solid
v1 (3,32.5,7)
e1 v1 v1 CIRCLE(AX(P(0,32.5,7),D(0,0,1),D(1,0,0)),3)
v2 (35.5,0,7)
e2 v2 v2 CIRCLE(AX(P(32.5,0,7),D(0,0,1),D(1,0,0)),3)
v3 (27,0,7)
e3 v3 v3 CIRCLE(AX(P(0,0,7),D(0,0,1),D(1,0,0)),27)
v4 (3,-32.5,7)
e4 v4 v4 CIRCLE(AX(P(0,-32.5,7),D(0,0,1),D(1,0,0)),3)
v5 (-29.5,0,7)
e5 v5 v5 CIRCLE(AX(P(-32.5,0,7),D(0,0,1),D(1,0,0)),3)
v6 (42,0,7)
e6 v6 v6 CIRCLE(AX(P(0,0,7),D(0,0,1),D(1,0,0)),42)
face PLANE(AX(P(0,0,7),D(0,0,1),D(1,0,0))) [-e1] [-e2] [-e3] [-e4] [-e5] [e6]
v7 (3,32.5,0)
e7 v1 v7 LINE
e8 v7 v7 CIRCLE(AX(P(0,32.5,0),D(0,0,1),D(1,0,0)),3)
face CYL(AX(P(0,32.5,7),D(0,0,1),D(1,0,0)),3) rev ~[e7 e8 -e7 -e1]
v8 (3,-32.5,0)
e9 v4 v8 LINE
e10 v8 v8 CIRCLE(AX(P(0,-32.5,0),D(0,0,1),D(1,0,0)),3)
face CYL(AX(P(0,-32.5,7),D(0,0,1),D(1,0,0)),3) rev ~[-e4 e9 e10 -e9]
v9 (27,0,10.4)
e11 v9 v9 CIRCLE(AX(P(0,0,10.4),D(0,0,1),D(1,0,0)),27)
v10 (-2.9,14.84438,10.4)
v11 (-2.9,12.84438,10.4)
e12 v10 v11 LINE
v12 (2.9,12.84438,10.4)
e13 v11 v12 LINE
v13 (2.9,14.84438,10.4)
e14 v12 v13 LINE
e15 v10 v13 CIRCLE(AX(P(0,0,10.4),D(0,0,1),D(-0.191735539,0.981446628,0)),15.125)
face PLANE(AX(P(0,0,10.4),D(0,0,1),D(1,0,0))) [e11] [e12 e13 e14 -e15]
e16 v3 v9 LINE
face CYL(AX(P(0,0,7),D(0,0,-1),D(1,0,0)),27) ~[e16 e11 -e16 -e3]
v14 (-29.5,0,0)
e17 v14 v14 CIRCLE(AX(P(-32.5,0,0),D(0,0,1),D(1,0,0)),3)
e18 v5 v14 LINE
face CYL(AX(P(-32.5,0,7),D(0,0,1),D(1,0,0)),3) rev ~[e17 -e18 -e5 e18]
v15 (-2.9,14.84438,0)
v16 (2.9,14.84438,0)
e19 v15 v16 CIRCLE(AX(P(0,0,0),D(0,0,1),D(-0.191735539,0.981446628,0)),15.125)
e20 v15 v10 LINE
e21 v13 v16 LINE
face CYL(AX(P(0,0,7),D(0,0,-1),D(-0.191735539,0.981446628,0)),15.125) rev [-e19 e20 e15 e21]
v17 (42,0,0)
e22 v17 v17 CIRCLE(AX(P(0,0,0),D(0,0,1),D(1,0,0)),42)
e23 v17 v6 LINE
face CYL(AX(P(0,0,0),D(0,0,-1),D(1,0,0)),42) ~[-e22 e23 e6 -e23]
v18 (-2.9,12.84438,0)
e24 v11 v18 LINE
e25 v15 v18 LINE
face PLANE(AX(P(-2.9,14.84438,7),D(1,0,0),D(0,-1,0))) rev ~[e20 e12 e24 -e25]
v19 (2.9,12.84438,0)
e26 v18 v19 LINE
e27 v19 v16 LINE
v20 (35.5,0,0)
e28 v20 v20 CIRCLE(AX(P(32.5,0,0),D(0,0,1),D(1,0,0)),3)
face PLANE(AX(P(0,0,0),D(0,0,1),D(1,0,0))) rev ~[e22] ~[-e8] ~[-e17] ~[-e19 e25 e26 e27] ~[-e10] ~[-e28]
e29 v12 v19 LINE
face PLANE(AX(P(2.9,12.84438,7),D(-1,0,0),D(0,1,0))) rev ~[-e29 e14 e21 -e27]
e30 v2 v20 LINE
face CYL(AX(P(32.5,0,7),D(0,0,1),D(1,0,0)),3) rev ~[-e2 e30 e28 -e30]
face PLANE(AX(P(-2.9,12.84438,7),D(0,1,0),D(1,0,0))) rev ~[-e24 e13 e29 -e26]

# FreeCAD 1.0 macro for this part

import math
import FreeCAD as App
import Part
import Sketcher
from FreeCAD import Vector
Q = App.Units.Quantity

doc = App.newDocument("Part")
body = doc.addObject("PartDesign::Body", "Body")

# Sketch on XY plane
sketch1 = doc.addObject("Sketcher::SketchObject", "Sketch")
body.addObject(sketch1)
sketch1.AttachmentSupport = (doc.XY_Plane, [""])
sketch1.MapMode = "FlatFace"
sketch1.addGeometry(Part.Circle(Vector(0, 0, 0), Vector(0, 0, 1), 42), False)
sketch1.addGeometry(Part.ArcOfCircle(Part.Circle(Vector(0, 0, 0), Vector(0, 0, 1), 15.1), math.radians(101), math.radians(439)), False)
sketch1.addGeometry(Part.LineSegment(Vector(-2.9, 14.8, 0), Vector(-2.9, 12.8, 0)), False)
sketch1.addGeometry(Part.LineSegment(Vector(-2.9, 12.8, 0), Vector(2.9, 12.8, 0)), False)
sketch1.addGeometry(Part.LineSegment(Vector(2.9, 12.8, 0), Vector(2.9, 14.8, 0)), False)
sketch1.addConstraint(Sketcher.Constraint("Coincident", 1, 1, 2, 1))
sketch1.addConstraint(Sketcher.Constraint("Coincident", 2, 2, 3, 1))
sketch1.addConstraint(Sketcher.Constraint("Coincident", 3, 2, 4, 1))
sketch1.addConstraint(Sketcher.Constraint("Coincident", 4, 2, 1, 2))
sketch1.addConstraint(Sketcher.Constraint("Vertical", 2))
sketch1.addConstraint(Sketcher.Constraint("Horizontal", 3))
sketch1.addConstraint(Sketcher.Constraint("Vertical", 4))
sketch1.addConstraint(Sketcher.Constraint("Coincident", 0, 3, -1, 1))
sketch1.addConstraint(Sketcher.Constraint("Coincident", 1, 3, -1, 1))
sketch1.addConstraint(Sketcher.Constraint("Horizontal", 1, 1, 4, 2))
sketch1.addConstraint(Sketcher.Constraint("Diameter", 0, Q("84 mm")))
sketch1.addConstraint(Sketcher.Constraint("DistanceY", 2, 2, 2, 1, Q("2 mm")))
sketch1.addConstraint(Sketcher.Constraint("DistanceX", 3, 1, 3, 2, Q("5.8 mm")))
sketch1.addConstraint(Sketcher.Constraint("Radius", 1, Q("15.125 mm")))
pad1 = doc.addObject("PartDesign::Pad", "Pad")
body.addObject(pad1)
pad1.Profile = sketch1
pad1.Length = 7

# Sketch on XY plane
sketch2 = doc.addObject("Sketcher::SketchObject", "Sketch001")
body.addObject(sketch2)
sketch2.AttachmentSupport = (doc.XY_Plane, [""])
sketch2.MapMode = "FlatFace"
sketch2.AttachmentOffset = App.Placement(Vector(0, 0, 7), App.Rotation())
sketch2.addGeometry(Part.Circle(Vector(0, 0, 0), Vector(0, 0, 1), 27), False)
sketch2.addGeometry(Part.ArcOfCircle(Part.Circle(Vector(0, 0, 0), Vector(0, 0, 1), 15.1), math.radians(101), math.radians(439)), False)
sketch2.addGeometry(Part.LineSegment(Vector(-2.9, 14.8, 0), Vector(-2.9, 12.8, 0)), False)
sketch2.addGeometry(Part.LineSegment(Vector(-2.9, 12.8, 0), Vector(2.9, 12.8, 0)), False)
sketch2.addGeometry(Part.LineSegment(Vector(2.9, 12.8, 0), Vector(2.9, 14.8, 0)), False)
sketch2.addConstraint(Sketcher.Constraint("Coincident", 1, 1, 2, 1))
sketch2.addConstraint(Sketcher.Constraint("Coincident", 2, 2, 3, 1))
sketch2.addConstraint(Sketcher.Constraint("Coincident", 3, 2, 4, 1))
sketch2.addConstraint(Sketcher.Constraint("Coincident", 4, 2, 1, 2))
sketch2.addConstraint(Sketcher.Constraint("Vertical", 2))
sketch2.addConstraint(Sketcher.Constraint("Horizontal", 3))
sketch2.addConstraint(Sketcher.Constraint("Vertical", 4))
sketch2.addConstraint(Sketcher.Constraint("Coincident", 0, 3, -1, 1))
sketch2.addConstraint(Sketcher.Constraint("Coincident", 1, 3, -1, 1))
sketch2.addConstraint(Sketcher.Constraint("Horizontal", 1, 1, 4, 2))
sketch2.addConstraint(Sketcher.Constraint("Diameter", 0, Q("54 mm")))
sketch2.addConstraint(Sketcher.Constraint("DistanceY", 2, 2, 2, 1, Q("2 mm")))
sketch2.addConstraint(Sketcher.Constraint("DistanceX", 3, 1, 3, 2, Q("5.8 mm")))
sketch2.addConstraint(Sketcher.Constraint("Radius", 1, Q("15.125 mm")))
pad2 = doc.addObject("PartDesign::Pad", "Pad001")
body.addObject(pad2)
pad2.Profile = sketch2
pad2.Length = 3.4

# Sketch on XY plane
sketch3 = doc.addObject("Sketcher::SketchObject", "Sketch002")
body.addObject(sketch3)
sketch3.AttachmentSupport = (doc.XY_Plane, [""])
sketch3.MapMode = "FlatFace"
sketch3.AttachmentOffset = App.Placement(Vector(0, 0, 7), App.Rotation())
sketch3.addGeometry(Part.Circle(Vector(0, 32.5, 0), Vector(0, 0, 1), 3), False)
sketch3.addGeometry(Part.Circle(Vector(0, -32.5, 0), Vector(0, 0, 1), 3), False)
sketch3.addGeometry(Part.Circle(Vector(32.5, 0, 0), Vector(0, 0, 1), 3), False)
sketch3.addGeometry(Part.Circle(Vector(-32.5, 0, 0), Vector(0, 0, 1), 3), False)
sketch3.addConstraint(Sketcher.Constraint("Equal", 0, 1))
sketch3.addConstraint(Sketcher.Constraint("Equal", 1, 2))
sketch3.addConstraint(Sketcher.Constraint("Equal", 2, 3))
sketch3.addConstraint(Sketcher.Constraint("Symmetric", 0, 3, 1, 3, -1, 1))
sketch3.addConstraint(Sketcher.Constraint("Symmetric", 2, 3, 3, 3, -1, 1))
sketch3.addConstraint(Sketcher.Constraint("PointOnObject", 0, 3, -2))
sketch3.addConstraint(Sketcher.Constraint("PointOnObject", 2, 3, -1))
sketch3.addConstraint(Sketcher.Constraint("Diameter", 0, Q("6 mm")))
sketch3.addConstraint(Sketcher.Constraint("DistanceY", 1, 3, 0, 3, Q("65 mm")))
sketch3.addConstraint(Sketcher.Constraint("DistanceX", 3, 3, 2, 3, Q("65 mm")))
pocket1 = doc.addObject("PartDesign::Pocket", "Pocket")
body.addObject(pocket1)
pocket1.Profile = sketch3
pocket1.Length = 25

doc.recompute()
